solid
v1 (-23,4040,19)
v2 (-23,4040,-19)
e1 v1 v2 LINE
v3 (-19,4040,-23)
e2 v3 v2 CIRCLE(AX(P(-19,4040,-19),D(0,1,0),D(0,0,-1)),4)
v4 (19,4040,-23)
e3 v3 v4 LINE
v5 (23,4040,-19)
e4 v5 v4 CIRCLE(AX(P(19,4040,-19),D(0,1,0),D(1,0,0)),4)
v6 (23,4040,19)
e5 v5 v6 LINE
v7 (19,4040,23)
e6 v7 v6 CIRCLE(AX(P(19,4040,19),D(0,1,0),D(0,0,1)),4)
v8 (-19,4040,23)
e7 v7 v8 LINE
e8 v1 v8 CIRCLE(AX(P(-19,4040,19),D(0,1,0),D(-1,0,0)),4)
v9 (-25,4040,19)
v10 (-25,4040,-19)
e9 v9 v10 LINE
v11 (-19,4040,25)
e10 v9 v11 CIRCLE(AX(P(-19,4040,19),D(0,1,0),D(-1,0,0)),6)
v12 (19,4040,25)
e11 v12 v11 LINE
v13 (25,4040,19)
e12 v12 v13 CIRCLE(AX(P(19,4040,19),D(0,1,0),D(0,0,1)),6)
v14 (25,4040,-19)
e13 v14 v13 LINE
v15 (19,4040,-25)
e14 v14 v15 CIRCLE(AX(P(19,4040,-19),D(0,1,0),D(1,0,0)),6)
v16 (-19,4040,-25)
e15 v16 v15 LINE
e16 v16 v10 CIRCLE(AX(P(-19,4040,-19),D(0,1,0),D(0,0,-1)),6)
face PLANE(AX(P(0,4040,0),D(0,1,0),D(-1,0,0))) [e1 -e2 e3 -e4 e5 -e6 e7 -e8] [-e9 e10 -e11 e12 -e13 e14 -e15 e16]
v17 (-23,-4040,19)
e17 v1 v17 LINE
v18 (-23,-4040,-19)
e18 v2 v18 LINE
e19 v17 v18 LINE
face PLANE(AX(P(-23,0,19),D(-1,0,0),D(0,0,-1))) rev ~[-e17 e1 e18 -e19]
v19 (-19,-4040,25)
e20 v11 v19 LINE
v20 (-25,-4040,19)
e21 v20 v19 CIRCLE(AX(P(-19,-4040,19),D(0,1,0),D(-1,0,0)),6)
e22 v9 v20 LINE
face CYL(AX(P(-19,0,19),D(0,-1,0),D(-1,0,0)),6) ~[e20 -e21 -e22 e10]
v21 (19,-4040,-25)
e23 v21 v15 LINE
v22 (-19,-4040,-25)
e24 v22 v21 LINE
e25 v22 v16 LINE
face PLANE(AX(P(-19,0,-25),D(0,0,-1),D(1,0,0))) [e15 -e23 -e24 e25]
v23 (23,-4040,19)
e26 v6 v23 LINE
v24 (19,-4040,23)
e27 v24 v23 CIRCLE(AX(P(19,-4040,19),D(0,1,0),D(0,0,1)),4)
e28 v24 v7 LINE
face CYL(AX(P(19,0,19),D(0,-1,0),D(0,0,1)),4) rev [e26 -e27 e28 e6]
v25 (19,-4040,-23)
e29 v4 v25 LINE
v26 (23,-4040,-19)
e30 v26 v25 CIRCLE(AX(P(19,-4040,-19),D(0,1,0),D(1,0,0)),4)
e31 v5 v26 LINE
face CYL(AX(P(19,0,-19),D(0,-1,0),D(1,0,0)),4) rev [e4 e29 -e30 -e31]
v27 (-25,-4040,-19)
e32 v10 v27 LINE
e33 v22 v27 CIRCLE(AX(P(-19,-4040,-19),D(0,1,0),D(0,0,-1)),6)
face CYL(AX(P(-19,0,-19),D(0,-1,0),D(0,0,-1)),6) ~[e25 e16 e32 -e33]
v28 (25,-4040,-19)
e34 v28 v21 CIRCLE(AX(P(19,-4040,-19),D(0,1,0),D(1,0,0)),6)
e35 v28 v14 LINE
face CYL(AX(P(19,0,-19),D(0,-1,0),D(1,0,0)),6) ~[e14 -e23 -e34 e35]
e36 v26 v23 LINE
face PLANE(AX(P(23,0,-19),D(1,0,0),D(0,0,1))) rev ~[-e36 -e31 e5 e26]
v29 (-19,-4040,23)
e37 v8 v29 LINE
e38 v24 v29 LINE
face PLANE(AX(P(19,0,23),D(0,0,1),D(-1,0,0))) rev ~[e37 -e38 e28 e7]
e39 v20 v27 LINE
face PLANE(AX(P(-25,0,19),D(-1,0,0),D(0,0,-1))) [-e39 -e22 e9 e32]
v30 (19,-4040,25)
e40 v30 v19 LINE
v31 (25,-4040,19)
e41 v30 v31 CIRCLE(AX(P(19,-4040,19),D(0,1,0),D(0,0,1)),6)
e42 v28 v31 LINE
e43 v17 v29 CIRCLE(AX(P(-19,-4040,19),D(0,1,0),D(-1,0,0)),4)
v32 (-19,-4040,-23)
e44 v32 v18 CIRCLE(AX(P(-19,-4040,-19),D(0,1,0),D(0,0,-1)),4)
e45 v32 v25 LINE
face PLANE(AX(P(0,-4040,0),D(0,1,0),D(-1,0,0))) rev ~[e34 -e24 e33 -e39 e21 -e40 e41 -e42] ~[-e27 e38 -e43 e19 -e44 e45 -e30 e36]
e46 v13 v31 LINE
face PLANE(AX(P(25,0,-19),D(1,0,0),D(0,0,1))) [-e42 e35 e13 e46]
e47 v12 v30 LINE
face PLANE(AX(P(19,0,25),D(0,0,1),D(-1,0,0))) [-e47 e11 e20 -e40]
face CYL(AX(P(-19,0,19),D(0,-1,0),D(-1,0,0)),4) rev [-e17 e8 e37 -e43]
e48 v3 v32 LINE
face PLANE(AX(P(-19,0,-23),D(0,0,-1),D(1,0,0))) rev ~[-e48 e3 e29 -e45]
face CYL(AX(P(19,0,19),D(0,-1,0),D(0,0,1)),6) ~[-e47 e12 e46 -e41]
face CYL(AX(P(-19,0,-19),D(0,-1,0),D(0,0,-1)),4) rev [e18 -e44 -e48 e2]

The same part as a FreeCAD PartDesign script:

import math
import FreeCAD as App
import Part
import Sketcher
Q = App.Units.Quantity

doc = App.newDocument("Part")
body = doc.addObject("PartDesign::Body", "Body")

sketch1 = doc.addObject("Sketcher::SketchObject", "Sketch")
body.addObject(sketch1)
sketch1.AttachmentSupport = (doc.XZ_Plane, [""])
sketch1.MapMode = "FlatFace"
sketch1.addGeometry([
    Part.LineSegment(App.Vector(25, 19, 0), App.Vector(25, -19, 0)),
    Part.ArcOfCircle(Part.Circle(App.Vector(19, -19, 0), App.Vector(0, 0, 1), 6), math.radians(-90), math.radians(0)),
    Part.LineSegment(App.Vector(19, -25, 0), App.Vector(-19, -25, 0)),
    Part.ArcOfCircle(Part.Circle(App.Vector(-19, -19, 0), App.Vector(0, 0, 1), 6), math.radians(180), math.radians(270)),
    Part.LineSegment(App.Vector(-25, -19, 0), App.Vector(-25, 19, 0)),
    Part.ArcOfCircle(Part.Circle(App.Vector(-19, 19, 0), App.Vector(0, 0, 1), 6), math.radians(90), math.radians(180)),
    Part.LineSegment(App.Vector(-19, 25, 0), App.Vector(19, 25, 0)),
    Part.ArcOfCircle(Part.Circle(App.Vector(19, 19, 0), App.Vector(0, 0, 1), 6), math.radians(0), math.radians(90)),
    Part.ArcOfCircle(Part.Circle(App.Vector(19, 19, 0), App.Vector(0, 0, 1), 4), math.radians(0), math.radians(90)),
    Part.LineSegment(App.Vector(19, 23, 0), App.Vector(-19, 23, 0)),
    Part.ArcOfCircle(Part.Circle(App.Vector(-19, 19, 0), App.Vector(0, 0, 1), 4), math.radians(90), math.radians(180)),
    Part.LineSegment(App.Vector(-23, 19, 0), App.Vector(-23, -19, 0)),
    Part.ArcOfCircle(Part.Circle(App.Vector(-19, -19, 0), App.Vector(0, 0, 1), 4), math.radians(180), math.radians(270)),
    Part.LineSegment(App.Vector(-19, -23, 0), App.Vector(19, -23, 0)),
    Part.ArcOfCircle(Part.Circle(App.Vector(19, -19, 0), App.Vector(0, 0, 1), 4), math.radians(-90), math.radians(0)),
    Part.LineSegment(App.Vector(23, -19, 0), App.Vector(23, 19, 0)),
], False)
sketch1.addConstraint([
    Sketcher.Constraint("Tangent", 0, 2, 1, 2),
    Sketcher.Constraint("Tangent", 1, 1, 2, 1),
    Sketcher.Constraint("Tangent", 2, 2, 3, 2),
    Sketcher.Constraint("Tangent", 3, 1, 4, 1),
    Sketcher.Constraint("Tangent", 4, 2, 5, 2),
    Sketcher.Constraint("Tangent", 5, 1, 6, 1),
    Sketcher.Constraint("Tangent", 6, 2, 7, 2),
    Sketcher.Constraint("Tangent", 7, 1, 0, 1),
    Sketcher.Constraint("Tangent", 8, 2, 9, 1),
    Sketcher.Constraint("Tangent", 9, 2, 10, 1),
    Sketcher.Constraint("Tangent", 10, 2, 11, 1),
    Sketcher.Constraint("Tangent", 11, 2, 12, 1),
    Sketcher.Constraint("Tangent", 12, 2, 13, 1),
    Sketcher.Constraint("Tangent", 13, 2, 14, 1),
    Sketcher.Constraint("Tangent", 14, 2, 15, 1),
    Sketcher.Constraint("Tangent", 15, 2, 8, 1),
    Sketcher.Constraint("Vertical", 0),
    Sketcher.Constraint("Horizontal", 2),
    Sketcher.Constraint("Vertical", 4),
    Sketcher.Constraint("Horizontal", 6),
    Sketcher.Constraint("Horizontal", 9),
    Sketcher.Constraint("Vertical", 11),
    Sketcher.Constraint("Horizontal", 13),
    Sketcher.Constraint("Vertical", 15),
    Sketcher.Constraint("Coincident", 8, 3, 7, 3),
    Sketcher.Constraint("Coincident", 10, 3, 5, 3),
    Sketcher.Constraint("Coincident", 12, 3, 3, 3),
    Sketcher.Constraint("Equal", 1, 3),
    Sketcher.Constraint("Equal", 3, 5),
    Sketcher.Constraint("Equal", 5, 7),
    Sketcher.Constraint("Equal", 12, 14),
    Sketcher.Constraint("Symmetric", 1, 3, 5, 3, -1, 1),
    Sketcher.Constraint("Equal", 13, 0),
    Sketcher.Constraint("Radius", 1, Q("6 mm")),
    Sketcher.Constraint("Radius", 8, Q("4 mm")),
    Sketcher.Constraint("DistanceX", 2, 2, 2, 1, Q("38 mm")),
])
pad1 = doc.addObject("PartDesign::Pad", "Pad")
body.addObject(pad1)
pad1.Profile = sketch1
pad1.Length = 8080
pad1.Midplane = True

doc.recompute()
